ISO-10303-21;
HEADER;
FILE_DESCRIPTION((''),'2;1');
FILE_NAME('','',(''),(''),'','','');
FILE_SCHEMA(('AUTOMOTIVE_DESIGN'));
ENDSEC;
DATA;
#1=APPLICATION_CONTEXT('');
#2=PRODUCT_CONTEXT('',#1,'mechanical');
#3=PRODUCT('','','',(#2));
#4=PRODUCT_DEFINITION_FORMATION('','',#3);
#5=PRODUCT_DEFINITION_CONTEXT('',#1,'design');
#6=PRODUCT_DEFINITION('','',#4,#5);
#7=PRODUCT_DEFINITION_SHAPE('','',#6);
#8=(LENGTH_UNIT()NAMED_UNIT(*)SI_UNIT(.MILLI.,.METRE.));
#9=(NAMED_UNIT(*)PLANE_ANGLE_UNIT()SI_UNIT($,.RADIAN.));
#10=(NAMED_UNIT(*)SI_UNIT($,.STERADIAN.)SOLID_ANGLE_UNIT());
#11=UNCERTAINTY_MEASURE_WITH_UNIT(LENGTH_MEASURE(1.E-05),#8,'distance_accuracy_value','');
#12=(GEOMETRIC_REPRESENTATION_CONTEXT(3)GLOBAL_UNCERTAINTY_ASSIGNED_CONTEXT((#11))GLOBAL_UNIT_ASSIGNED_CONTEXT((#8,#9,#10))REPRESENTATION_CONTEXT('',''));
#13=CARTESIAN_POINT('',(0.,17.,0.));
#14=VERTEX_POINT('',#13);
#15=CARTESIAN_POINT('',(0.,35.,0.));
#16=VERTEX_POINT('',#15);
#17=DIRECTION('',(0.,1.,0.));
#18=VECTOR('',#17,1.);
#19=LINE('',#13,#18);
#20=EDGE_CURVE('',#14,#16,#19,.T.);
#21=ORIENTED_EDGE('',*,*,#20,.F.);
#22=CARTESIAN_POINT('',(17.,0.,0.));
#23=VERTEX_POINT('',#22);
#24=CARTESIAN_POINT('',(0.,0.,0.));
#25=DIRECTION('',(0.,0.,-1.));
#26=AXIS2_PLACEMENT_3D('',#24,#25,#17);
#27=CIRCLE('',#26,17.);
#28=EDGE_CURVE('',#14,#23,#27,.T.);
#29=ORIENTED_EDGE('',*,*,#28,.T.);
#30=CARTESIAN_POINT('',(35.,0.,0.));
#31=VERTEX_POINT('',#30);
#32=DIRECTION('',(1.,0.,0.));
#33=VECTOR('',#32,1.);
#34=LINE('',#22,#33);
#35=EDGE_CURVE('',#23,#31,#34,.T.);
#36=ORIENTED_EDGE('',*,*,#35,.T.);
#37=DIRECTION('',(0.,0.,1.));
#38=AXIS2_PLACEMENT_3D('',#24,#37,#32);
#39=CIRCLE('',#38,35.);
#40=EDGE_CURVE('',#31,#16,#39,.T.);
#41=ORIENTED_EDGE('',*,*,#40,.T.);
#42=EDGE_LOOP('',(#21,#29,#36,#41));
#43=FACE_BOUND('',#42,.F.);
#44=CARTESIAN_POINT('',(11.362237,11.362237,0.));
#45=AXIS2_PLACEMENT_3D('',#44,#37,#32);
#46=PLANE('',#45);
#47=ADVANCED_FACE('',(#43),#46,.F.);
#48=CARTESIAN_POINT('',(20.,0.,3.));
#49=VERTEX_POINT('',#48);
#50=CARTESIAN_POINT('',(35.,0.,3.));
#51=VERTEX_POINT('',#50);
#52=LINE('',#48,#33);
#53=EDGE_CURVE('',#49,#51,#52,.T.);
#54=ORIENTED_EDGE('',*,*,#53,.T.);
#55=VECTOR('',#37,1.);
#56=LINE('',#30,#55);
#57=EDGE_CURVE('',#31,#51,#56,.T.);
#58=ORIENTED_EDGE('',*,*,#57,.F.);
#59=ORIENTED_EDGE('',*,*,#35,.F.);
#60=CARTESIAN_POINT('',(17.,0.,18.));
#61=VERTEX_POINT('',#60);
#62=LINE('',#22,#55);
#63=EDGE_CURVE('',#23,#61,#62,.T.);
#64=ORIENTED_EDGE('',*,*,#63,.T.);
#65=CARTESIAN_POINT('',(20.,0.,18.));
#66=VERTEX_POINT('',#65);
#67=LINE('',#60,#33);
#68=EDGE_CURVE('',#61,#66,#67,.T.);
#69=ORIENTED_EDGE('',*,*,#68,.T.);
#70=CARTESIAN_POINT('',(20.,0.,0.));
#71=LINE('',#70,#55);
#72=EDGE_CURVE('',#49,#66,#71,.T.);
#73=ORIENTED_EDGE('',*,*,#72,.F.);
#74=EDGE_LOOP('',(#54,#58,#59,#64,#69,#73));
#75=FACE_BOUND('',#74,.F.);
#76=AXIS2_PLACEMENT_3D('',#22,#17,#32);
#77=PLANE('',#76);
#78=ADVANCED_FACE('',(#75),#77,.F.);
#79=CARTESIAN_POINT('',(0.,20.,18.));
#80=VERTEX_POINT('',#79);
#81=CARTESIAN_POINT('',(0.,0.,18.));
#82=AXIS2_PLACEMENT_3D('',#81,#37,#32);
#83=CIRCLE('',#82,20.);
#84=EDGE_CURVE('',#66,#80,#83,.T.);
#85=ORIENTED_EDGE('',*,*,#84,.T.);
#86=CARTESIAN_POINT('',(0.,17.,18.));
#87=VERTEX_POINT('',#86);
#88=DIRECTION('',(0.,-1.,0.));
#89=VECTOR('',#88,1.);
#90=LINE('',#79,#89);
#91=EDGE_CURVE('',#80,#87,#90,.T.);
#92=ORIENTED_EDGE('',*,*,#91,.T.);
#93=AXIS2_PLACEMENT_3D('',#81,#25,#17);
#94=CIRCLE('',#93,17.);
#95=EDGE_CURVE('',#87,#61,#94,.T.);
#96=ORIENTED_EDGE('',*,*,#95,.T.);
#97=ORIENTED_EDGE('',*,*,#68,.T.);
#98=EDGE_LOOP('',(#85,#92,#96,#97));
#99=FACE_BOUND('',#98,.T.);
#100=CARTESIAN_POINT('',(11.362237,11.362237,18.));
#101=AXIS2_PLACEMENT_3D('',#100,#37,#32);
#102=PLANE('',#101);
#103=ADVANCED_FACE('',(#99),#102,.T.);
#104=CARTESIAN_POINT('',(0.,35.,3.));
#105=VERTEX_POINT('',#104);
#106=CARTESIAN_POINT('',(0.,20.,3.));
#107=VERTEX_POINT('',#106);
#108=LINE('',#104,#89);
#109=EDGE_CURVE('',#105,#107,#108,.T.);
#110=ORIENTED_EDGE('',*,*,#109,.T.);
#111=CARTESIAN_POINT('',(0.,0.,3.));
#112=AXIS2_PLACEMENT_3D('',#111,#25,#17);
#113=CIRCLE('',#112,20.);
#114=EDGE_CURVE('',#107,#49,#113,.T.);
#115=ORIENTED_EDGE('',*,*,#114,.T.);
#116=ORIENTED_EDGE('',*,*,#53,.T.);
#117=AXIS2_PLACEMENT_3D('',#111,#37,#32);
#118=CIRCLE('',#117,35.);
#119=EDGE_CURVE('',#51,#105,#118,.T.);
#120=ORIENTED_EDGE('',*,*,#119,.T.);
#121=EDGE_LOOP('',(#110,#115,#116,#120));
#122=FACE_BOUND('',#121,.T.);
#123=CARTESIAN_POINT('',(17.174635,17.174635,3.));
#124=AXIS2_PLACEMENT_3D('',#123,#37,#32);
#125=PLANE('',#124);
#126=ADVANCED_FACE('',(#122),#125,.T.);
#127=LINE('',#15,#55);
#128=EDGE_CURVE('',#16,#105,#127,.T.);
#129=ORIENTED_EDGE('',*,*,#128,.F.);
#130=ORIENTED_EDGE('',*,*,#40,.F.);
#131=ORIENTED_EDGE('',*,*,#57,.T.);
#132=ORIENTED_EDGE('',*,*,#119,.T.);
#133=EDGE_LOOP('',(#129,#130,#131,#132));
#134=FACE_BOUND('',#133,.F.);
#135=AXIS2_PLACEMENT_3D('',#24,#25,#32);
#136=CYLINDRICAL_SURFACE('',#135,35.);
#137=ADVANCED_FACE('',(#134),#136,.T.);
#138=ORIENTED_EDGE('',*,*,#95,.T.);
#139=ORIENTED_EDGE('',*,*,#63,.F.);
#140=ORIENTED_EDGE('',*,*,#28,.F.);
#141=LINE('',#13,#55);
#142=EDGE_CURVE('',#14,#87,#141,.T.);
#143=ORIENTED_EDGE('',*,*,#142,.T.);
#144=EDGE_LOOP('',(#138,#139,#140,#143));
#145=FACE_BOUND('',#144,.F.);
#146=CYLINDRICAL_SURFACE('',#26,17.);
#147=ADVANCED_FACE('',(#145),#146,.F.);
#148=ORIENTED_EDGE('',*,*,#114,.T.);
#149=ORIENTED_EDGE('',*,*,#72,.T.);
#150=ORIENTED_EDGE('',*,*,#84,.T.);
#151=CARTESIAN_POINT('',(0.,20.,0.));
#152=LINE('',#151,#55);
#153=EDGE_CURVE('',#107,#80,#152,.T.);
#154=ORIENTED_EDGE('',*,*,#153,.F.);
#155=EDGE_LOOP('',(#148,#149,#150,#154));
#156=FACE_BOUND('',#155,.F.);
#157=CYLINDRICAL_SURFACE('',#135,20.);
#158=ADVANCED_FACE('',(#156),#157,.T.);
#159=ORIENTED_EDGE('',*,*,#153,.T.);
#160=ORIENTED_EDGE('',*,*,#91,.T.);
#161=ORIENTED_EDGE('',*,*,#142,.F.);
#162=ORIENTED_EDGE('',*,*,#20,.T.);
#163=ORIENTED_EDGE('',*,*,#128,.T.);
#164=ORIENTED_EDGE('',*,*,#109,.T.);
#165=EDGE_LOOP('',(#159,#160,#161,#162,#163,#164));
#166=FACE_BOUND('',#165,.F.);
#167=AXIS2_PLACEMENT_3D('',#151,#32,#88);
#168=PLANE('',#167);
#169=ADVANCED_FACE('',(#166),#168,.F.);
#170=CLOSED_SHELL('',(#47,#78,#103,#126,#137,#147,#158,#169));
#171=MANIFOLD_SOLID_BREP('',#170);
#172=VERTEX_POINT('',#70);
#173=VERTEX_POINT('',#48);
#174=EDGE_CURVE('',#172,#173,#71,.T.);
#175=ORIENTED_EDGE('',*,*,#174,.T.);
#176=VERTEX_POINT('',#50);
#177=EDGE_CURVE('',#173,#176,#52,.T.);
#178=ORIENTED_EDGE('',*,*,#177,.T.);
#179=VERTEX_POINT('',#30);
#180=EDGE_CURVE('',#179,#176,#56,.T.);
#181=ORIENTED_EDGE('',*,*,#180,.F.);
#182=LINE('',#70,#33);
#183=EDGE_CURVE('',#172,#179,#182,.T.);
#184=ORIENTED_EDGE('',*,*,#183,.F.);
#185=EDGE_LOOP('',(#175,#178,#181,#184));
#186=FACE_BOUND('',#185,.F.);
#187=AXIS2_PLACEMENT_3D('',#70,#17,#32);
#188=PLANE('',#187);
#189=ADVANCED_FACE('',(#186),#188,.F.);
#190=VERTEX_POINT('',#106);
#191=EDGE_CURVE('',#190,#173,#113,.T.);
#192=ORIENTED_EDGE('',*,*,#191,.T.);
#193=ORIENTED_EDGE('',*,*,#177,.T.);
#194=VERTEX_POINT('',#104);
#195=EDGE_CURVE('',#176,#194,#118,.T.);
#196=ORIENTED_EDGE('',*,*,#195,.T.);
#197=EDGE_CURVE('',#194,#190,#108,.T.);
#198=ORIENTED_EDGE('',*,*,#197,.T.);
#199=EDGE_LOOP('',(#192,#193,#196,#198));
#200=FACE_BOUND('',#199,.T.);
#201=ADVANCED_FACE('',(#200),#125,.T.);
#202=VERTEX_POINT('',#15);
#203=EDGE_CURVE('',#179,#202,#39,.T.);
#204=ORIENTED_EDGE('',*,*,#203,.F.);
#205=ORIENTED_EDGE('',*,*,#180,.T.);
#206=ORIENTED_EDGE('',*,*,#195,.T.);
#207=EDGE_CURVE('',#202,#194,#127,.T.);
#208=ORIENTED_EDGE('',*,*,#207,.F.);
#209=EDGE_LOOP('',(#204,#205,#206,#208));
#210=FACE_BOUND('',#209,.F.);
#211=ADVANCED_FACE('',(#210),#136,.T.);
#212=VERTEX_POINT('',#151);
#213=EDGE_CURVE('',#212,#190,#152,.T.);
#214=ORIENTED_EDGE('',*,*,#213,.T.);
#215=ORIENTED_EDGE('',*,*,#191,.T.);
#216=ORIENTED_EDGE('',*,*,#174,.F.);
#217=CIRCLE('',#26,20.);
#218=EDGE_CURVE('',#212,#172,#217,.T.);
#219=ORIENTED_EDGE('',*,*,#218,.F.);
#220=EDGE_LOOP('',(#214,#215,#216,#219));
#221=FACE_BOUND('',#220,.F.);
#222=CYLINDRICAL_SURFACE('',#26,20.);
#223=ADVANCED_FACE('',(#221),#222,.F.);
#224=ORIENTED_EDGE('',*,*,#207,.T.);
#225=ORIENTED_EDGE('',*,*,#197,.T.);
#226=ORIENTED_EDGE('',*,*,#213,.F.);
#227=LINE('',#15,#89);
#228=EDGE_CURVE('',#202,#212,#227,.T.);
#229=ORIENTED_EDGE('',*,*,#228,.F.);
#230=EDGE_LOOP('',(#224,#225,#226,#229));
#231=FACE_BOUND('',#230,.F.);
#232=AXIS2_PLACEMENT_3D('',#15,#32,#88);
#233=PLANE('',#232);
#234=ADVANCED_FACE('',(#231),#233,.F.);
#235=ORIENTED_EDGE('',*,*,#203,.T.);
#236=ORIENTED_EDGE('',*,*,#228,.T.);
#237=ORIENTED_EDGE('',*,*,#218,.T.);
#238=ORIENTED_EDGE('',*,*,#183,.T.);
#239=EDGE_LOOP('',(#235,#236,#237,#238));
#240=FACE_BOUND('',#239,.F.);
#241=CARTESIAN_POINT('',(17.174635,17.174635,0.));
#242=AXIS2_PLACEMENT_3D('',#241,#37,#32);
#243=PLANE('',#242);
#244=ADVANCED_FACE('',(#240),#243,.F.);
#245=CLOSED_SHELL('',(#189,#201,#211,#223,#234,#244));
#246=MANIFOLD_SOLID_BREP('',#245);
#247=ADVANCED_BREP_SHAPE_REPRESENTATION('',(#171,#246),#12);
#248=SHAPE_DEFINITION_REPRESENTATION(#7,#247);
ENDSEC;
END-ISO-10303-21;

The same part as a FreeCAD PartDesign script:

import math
import FreeCAD as App
import Part
import Sketcher

doc = App.newDocument("Part")
params = doc.addObject("Spreadsheet::Sheet", "Params")
for row, (alias, value) in enumerate([
    ("sketch1_radius", "35 mm"),
    ("sketch1_radius2", "20 mm"),
    ("pad1_length", "3 mm"),
    ("sketch2_radius", "20 mm"),
    ("sketch2_radius2", "17 mm"),
    ("pad2_length", "18 mm"),
    ("sketch3_radius", "35 mm"),
    ("sketch3_radius2", "20 mm"),
    ("pad3_length", "3 mm"),
], start=1):
    params.set(f"A{row}", alias)
    params.set(f"B{row}", "=" + value)
    params.setAlias(f"B{row}", alias)

body = doc.addObject("PartDesign::Body", "Body")

sketch1 = body.newObject("Sketcher::SketchObject", "Sketch")
sketch1.AttachmentSupport = (doc.getObject("XY_Plane"), [""])
sketch1.MapMode = "FlatFace"
sketch1.addGeometry(Part.LineSegment(App.Vector(20, 0, 0), App.Vector(35, 0, 0)), False)
sketch1.addGeometry(Part.ArcOfCircle(Part.Circle(App.Vector(0, 0, 0), App.Vector(0, 0, 1), 35), math.radians(0), math.radians(90)), False)
sketch1.addGeometry(Part.LineSegment(App.Vector(0, 35, 0), App.Vector(0, 20, 0)), False)
sketch1.addGeometry(Part.ArcOfCircle(Part.Circle(App.Vector(0, 0, 0), App.Vector(0, 0, 1), 20), math.radians(0), math.radians(90)), False)
sketch1.addConstraint(Sketcher.Constraint("Coincident", 0, 2, 1, 1))
sketch1.addConstraint(Sketcher.Constraint("Coincident", 1, 2, 2, 1))
sketch1.addConstraint(Sketcher.Constraint("Coincident", 2, 2, 3, 2))
sketch1.addConstraint(Sketcher.Constraint("Coincident", 3, 1, 0, 1))
sketch1.addConstraint(Sketcher.Constraint("Horizontal", 0))
sketch1.addConstraint(Sketcher.Constraint("Vertical", 2))
sketch1.addConstraint(Sketcher.Constraint("Coincident", 1, 3, -1, 1))
sketch1.addConstraint(Sketcher.Constraint("Coincident", 3, 3, -1, 1))
sketch1.addConstraint(Sketcher.Constraint("PointOnObject", 0, 2, -1))
sketch1.addConstraint(Sketcher.Constraint("PointOnObject", 1, 2, -2))
sketch1.addConstraint(Sketcher.Constraint("Radius", 1, 35.0))
sketch1.addConstraint(Sketcher.Constraint("Radius", 3, 20.0))
sketch1.setExpression("Constraints[10]", "Params.sketch1_radius")
sketch1.setExpression("Constraints[11]", "Params.sketch1_radius2")
pad1 = body.newObject("PartDesign::Pad", "Pad")
pad1.Profile = sketch1
pad1.setExpression("Length", "Params.pad1_length")

sketch2 = body.newObject("Sketcher::SketchObject", "Sketch001")
sketch2.AttachmentSupport = (doc.getObject("XY_Plane"), [""])
sketch2.MapMode = "FlatFace"
sketch2.addGeometry(Part.LineSegment(App.Vector(17, 0, 0), App.Vector(20, 0, 0)), False)
sketch2.addGeometry(Part.ArcOfCircle(Part.Circle(App.Vector(0, 0, 0), App.Vector(0, 0, 1), 20), math.radians(0), math.radians(90)), False)
sketch2.addGeometry(Part.LineSegment(App.Vector(0, 20, 0), App.Vector(0, 17, 0)), False)
sketch2.addGeometry(Part.ArcOfCircle(Part.Circle(App.Vector(0, 0, 0), App.Vector(0, 0, 1), 17), math.radians(0), math.radians(90)), False)
sketch2.addConstraint(Sketcher.Constraint("Coincident", 0, 2, 1, 1))
sketch2.addConstraint(Sketcher.Constraint("Coincident", 1, 2, 2, 1))
sketch2.addConstraint(Sketcher.Constraint("Coincident", 2, 2, 3, 2))
sketch2.addConstraint(Sketcher.Constraint("Coincident", 3, 1, 0, 1))
sketch2.addConstraint(Sketcher.Constraint("Horizontal", 0))
sketch2.addConstraint(Sketcher.Constraint("Vertical", 2))
sketch2.addConstraint(Sketcher.Constraint("Coincident", 1, 3, -1, 1))
sketch2.addConstraint(Sketcher.Constraint("Coincident", 3, 3, -1, 1))
sketch2.addConstraint(Sketcher.Constraint("PointOnObject", 0, 2, -1))
sketch2.addConstraint(Sketcher.Constraint("PointOnObject", 1, 2, -2))
sketch2.addConstraint(Sketcher.Constraint("Radius", 1, 20.0))
sketch2.addConstraint(Sketcher.Constraint("Radius", 3, 17.0))
sketch2.setExpression("Constraints[10]", "Params.sketch2_radius")
sketch2.setExpression("Constraints[11]", "Params.sketch2_radius2")
pad2 = body.newObject("PartDesign::Pad", "Pad001")
pad2.Profile = sketch2
pad2.setExpression("Length", "Params.pad2_length")
body2 = doc.addObject("PartDesign::Body", "Body001")

sketch3 = body2.newObject("Sketcher::SketchObject", "Sketch002")
sketch3.AttachmentSupport = (doc.getObject("XY_Plane001"), [""])
sketch3.MapMode = "FlatFace"
sketch3.addGeometry(Part.LineSegment(App.Vector(20, 0, 0), App.Vector(35, 0, 0)), False)
sketch3.addGeometry(Part.ArcOfCircle(Part.Circle(App.Vector(0, 0, 0), App.Vector(0, 0, 1), 35), math.radians(0), math.radians(90)), False)
sketch3.addGeometry(Part.LineSegment(App.Vector(0, 35, 0), App.Vector(0, 20, 0)), False)
sketch3.addGeometry(Part.ArcOfCircle(Part.Circle(App.Vector(0, 0, 0), App.Vector(0, 0, 1), 20), math.radians(0), math.radians(90)), False)
sketch3.addConstraint(Sketcher.Constraint("Coincident", 0, 2, 1, 1))
sketch3.addConstraint(Sketcher.Constraint("Coincident", 1, 2, 2, 1))
sketch3.addConstraint(Sketcher.Constraint("Coincident", 2, 2, 3, 2))
sketch3.addConstraint(Sketcher.Constraint("Coincident", 3, 1, 0, 1))
sketch3.addConstraint(Sketcher.Constraint("Horizontal", 0))
sketch3.addConstraint(Sketcher.Constraint("Vertical", 2))
sketch3.addConstraint(Sketcher.Constraint("Coincident", 1, 3, -1, 1))
sketch3.addConstraint(Sketcher.Constraint("Coincident", 3, 3, -1, 1))
sketch3.addConstraint(Sketcher.Constraint("PointOnObject", 0, 2, -1))
sketch3.addConstraint(Sketcher.Constraint("PointOnObject", 1, 2, -2))
sketch3.addConstraint(Sketcher.Constraint("Radius", 1, 35.0))
sketch3.addConstraint(Sketcher.Constraint("Radius", 3, 20.0))
sketch3.setExpression("Constraints[10]", "Params.sketch3_radius")
sketch3.setExpression("Constraints[11]", "Params.sketch3_radius2")
pad3 = body2.newObject("PartDesign::Pad", "Pad002")
pad3.Profile = sketch3
pad3.setExpression("Length", "Params.pad3_length")

doc.recompute()
